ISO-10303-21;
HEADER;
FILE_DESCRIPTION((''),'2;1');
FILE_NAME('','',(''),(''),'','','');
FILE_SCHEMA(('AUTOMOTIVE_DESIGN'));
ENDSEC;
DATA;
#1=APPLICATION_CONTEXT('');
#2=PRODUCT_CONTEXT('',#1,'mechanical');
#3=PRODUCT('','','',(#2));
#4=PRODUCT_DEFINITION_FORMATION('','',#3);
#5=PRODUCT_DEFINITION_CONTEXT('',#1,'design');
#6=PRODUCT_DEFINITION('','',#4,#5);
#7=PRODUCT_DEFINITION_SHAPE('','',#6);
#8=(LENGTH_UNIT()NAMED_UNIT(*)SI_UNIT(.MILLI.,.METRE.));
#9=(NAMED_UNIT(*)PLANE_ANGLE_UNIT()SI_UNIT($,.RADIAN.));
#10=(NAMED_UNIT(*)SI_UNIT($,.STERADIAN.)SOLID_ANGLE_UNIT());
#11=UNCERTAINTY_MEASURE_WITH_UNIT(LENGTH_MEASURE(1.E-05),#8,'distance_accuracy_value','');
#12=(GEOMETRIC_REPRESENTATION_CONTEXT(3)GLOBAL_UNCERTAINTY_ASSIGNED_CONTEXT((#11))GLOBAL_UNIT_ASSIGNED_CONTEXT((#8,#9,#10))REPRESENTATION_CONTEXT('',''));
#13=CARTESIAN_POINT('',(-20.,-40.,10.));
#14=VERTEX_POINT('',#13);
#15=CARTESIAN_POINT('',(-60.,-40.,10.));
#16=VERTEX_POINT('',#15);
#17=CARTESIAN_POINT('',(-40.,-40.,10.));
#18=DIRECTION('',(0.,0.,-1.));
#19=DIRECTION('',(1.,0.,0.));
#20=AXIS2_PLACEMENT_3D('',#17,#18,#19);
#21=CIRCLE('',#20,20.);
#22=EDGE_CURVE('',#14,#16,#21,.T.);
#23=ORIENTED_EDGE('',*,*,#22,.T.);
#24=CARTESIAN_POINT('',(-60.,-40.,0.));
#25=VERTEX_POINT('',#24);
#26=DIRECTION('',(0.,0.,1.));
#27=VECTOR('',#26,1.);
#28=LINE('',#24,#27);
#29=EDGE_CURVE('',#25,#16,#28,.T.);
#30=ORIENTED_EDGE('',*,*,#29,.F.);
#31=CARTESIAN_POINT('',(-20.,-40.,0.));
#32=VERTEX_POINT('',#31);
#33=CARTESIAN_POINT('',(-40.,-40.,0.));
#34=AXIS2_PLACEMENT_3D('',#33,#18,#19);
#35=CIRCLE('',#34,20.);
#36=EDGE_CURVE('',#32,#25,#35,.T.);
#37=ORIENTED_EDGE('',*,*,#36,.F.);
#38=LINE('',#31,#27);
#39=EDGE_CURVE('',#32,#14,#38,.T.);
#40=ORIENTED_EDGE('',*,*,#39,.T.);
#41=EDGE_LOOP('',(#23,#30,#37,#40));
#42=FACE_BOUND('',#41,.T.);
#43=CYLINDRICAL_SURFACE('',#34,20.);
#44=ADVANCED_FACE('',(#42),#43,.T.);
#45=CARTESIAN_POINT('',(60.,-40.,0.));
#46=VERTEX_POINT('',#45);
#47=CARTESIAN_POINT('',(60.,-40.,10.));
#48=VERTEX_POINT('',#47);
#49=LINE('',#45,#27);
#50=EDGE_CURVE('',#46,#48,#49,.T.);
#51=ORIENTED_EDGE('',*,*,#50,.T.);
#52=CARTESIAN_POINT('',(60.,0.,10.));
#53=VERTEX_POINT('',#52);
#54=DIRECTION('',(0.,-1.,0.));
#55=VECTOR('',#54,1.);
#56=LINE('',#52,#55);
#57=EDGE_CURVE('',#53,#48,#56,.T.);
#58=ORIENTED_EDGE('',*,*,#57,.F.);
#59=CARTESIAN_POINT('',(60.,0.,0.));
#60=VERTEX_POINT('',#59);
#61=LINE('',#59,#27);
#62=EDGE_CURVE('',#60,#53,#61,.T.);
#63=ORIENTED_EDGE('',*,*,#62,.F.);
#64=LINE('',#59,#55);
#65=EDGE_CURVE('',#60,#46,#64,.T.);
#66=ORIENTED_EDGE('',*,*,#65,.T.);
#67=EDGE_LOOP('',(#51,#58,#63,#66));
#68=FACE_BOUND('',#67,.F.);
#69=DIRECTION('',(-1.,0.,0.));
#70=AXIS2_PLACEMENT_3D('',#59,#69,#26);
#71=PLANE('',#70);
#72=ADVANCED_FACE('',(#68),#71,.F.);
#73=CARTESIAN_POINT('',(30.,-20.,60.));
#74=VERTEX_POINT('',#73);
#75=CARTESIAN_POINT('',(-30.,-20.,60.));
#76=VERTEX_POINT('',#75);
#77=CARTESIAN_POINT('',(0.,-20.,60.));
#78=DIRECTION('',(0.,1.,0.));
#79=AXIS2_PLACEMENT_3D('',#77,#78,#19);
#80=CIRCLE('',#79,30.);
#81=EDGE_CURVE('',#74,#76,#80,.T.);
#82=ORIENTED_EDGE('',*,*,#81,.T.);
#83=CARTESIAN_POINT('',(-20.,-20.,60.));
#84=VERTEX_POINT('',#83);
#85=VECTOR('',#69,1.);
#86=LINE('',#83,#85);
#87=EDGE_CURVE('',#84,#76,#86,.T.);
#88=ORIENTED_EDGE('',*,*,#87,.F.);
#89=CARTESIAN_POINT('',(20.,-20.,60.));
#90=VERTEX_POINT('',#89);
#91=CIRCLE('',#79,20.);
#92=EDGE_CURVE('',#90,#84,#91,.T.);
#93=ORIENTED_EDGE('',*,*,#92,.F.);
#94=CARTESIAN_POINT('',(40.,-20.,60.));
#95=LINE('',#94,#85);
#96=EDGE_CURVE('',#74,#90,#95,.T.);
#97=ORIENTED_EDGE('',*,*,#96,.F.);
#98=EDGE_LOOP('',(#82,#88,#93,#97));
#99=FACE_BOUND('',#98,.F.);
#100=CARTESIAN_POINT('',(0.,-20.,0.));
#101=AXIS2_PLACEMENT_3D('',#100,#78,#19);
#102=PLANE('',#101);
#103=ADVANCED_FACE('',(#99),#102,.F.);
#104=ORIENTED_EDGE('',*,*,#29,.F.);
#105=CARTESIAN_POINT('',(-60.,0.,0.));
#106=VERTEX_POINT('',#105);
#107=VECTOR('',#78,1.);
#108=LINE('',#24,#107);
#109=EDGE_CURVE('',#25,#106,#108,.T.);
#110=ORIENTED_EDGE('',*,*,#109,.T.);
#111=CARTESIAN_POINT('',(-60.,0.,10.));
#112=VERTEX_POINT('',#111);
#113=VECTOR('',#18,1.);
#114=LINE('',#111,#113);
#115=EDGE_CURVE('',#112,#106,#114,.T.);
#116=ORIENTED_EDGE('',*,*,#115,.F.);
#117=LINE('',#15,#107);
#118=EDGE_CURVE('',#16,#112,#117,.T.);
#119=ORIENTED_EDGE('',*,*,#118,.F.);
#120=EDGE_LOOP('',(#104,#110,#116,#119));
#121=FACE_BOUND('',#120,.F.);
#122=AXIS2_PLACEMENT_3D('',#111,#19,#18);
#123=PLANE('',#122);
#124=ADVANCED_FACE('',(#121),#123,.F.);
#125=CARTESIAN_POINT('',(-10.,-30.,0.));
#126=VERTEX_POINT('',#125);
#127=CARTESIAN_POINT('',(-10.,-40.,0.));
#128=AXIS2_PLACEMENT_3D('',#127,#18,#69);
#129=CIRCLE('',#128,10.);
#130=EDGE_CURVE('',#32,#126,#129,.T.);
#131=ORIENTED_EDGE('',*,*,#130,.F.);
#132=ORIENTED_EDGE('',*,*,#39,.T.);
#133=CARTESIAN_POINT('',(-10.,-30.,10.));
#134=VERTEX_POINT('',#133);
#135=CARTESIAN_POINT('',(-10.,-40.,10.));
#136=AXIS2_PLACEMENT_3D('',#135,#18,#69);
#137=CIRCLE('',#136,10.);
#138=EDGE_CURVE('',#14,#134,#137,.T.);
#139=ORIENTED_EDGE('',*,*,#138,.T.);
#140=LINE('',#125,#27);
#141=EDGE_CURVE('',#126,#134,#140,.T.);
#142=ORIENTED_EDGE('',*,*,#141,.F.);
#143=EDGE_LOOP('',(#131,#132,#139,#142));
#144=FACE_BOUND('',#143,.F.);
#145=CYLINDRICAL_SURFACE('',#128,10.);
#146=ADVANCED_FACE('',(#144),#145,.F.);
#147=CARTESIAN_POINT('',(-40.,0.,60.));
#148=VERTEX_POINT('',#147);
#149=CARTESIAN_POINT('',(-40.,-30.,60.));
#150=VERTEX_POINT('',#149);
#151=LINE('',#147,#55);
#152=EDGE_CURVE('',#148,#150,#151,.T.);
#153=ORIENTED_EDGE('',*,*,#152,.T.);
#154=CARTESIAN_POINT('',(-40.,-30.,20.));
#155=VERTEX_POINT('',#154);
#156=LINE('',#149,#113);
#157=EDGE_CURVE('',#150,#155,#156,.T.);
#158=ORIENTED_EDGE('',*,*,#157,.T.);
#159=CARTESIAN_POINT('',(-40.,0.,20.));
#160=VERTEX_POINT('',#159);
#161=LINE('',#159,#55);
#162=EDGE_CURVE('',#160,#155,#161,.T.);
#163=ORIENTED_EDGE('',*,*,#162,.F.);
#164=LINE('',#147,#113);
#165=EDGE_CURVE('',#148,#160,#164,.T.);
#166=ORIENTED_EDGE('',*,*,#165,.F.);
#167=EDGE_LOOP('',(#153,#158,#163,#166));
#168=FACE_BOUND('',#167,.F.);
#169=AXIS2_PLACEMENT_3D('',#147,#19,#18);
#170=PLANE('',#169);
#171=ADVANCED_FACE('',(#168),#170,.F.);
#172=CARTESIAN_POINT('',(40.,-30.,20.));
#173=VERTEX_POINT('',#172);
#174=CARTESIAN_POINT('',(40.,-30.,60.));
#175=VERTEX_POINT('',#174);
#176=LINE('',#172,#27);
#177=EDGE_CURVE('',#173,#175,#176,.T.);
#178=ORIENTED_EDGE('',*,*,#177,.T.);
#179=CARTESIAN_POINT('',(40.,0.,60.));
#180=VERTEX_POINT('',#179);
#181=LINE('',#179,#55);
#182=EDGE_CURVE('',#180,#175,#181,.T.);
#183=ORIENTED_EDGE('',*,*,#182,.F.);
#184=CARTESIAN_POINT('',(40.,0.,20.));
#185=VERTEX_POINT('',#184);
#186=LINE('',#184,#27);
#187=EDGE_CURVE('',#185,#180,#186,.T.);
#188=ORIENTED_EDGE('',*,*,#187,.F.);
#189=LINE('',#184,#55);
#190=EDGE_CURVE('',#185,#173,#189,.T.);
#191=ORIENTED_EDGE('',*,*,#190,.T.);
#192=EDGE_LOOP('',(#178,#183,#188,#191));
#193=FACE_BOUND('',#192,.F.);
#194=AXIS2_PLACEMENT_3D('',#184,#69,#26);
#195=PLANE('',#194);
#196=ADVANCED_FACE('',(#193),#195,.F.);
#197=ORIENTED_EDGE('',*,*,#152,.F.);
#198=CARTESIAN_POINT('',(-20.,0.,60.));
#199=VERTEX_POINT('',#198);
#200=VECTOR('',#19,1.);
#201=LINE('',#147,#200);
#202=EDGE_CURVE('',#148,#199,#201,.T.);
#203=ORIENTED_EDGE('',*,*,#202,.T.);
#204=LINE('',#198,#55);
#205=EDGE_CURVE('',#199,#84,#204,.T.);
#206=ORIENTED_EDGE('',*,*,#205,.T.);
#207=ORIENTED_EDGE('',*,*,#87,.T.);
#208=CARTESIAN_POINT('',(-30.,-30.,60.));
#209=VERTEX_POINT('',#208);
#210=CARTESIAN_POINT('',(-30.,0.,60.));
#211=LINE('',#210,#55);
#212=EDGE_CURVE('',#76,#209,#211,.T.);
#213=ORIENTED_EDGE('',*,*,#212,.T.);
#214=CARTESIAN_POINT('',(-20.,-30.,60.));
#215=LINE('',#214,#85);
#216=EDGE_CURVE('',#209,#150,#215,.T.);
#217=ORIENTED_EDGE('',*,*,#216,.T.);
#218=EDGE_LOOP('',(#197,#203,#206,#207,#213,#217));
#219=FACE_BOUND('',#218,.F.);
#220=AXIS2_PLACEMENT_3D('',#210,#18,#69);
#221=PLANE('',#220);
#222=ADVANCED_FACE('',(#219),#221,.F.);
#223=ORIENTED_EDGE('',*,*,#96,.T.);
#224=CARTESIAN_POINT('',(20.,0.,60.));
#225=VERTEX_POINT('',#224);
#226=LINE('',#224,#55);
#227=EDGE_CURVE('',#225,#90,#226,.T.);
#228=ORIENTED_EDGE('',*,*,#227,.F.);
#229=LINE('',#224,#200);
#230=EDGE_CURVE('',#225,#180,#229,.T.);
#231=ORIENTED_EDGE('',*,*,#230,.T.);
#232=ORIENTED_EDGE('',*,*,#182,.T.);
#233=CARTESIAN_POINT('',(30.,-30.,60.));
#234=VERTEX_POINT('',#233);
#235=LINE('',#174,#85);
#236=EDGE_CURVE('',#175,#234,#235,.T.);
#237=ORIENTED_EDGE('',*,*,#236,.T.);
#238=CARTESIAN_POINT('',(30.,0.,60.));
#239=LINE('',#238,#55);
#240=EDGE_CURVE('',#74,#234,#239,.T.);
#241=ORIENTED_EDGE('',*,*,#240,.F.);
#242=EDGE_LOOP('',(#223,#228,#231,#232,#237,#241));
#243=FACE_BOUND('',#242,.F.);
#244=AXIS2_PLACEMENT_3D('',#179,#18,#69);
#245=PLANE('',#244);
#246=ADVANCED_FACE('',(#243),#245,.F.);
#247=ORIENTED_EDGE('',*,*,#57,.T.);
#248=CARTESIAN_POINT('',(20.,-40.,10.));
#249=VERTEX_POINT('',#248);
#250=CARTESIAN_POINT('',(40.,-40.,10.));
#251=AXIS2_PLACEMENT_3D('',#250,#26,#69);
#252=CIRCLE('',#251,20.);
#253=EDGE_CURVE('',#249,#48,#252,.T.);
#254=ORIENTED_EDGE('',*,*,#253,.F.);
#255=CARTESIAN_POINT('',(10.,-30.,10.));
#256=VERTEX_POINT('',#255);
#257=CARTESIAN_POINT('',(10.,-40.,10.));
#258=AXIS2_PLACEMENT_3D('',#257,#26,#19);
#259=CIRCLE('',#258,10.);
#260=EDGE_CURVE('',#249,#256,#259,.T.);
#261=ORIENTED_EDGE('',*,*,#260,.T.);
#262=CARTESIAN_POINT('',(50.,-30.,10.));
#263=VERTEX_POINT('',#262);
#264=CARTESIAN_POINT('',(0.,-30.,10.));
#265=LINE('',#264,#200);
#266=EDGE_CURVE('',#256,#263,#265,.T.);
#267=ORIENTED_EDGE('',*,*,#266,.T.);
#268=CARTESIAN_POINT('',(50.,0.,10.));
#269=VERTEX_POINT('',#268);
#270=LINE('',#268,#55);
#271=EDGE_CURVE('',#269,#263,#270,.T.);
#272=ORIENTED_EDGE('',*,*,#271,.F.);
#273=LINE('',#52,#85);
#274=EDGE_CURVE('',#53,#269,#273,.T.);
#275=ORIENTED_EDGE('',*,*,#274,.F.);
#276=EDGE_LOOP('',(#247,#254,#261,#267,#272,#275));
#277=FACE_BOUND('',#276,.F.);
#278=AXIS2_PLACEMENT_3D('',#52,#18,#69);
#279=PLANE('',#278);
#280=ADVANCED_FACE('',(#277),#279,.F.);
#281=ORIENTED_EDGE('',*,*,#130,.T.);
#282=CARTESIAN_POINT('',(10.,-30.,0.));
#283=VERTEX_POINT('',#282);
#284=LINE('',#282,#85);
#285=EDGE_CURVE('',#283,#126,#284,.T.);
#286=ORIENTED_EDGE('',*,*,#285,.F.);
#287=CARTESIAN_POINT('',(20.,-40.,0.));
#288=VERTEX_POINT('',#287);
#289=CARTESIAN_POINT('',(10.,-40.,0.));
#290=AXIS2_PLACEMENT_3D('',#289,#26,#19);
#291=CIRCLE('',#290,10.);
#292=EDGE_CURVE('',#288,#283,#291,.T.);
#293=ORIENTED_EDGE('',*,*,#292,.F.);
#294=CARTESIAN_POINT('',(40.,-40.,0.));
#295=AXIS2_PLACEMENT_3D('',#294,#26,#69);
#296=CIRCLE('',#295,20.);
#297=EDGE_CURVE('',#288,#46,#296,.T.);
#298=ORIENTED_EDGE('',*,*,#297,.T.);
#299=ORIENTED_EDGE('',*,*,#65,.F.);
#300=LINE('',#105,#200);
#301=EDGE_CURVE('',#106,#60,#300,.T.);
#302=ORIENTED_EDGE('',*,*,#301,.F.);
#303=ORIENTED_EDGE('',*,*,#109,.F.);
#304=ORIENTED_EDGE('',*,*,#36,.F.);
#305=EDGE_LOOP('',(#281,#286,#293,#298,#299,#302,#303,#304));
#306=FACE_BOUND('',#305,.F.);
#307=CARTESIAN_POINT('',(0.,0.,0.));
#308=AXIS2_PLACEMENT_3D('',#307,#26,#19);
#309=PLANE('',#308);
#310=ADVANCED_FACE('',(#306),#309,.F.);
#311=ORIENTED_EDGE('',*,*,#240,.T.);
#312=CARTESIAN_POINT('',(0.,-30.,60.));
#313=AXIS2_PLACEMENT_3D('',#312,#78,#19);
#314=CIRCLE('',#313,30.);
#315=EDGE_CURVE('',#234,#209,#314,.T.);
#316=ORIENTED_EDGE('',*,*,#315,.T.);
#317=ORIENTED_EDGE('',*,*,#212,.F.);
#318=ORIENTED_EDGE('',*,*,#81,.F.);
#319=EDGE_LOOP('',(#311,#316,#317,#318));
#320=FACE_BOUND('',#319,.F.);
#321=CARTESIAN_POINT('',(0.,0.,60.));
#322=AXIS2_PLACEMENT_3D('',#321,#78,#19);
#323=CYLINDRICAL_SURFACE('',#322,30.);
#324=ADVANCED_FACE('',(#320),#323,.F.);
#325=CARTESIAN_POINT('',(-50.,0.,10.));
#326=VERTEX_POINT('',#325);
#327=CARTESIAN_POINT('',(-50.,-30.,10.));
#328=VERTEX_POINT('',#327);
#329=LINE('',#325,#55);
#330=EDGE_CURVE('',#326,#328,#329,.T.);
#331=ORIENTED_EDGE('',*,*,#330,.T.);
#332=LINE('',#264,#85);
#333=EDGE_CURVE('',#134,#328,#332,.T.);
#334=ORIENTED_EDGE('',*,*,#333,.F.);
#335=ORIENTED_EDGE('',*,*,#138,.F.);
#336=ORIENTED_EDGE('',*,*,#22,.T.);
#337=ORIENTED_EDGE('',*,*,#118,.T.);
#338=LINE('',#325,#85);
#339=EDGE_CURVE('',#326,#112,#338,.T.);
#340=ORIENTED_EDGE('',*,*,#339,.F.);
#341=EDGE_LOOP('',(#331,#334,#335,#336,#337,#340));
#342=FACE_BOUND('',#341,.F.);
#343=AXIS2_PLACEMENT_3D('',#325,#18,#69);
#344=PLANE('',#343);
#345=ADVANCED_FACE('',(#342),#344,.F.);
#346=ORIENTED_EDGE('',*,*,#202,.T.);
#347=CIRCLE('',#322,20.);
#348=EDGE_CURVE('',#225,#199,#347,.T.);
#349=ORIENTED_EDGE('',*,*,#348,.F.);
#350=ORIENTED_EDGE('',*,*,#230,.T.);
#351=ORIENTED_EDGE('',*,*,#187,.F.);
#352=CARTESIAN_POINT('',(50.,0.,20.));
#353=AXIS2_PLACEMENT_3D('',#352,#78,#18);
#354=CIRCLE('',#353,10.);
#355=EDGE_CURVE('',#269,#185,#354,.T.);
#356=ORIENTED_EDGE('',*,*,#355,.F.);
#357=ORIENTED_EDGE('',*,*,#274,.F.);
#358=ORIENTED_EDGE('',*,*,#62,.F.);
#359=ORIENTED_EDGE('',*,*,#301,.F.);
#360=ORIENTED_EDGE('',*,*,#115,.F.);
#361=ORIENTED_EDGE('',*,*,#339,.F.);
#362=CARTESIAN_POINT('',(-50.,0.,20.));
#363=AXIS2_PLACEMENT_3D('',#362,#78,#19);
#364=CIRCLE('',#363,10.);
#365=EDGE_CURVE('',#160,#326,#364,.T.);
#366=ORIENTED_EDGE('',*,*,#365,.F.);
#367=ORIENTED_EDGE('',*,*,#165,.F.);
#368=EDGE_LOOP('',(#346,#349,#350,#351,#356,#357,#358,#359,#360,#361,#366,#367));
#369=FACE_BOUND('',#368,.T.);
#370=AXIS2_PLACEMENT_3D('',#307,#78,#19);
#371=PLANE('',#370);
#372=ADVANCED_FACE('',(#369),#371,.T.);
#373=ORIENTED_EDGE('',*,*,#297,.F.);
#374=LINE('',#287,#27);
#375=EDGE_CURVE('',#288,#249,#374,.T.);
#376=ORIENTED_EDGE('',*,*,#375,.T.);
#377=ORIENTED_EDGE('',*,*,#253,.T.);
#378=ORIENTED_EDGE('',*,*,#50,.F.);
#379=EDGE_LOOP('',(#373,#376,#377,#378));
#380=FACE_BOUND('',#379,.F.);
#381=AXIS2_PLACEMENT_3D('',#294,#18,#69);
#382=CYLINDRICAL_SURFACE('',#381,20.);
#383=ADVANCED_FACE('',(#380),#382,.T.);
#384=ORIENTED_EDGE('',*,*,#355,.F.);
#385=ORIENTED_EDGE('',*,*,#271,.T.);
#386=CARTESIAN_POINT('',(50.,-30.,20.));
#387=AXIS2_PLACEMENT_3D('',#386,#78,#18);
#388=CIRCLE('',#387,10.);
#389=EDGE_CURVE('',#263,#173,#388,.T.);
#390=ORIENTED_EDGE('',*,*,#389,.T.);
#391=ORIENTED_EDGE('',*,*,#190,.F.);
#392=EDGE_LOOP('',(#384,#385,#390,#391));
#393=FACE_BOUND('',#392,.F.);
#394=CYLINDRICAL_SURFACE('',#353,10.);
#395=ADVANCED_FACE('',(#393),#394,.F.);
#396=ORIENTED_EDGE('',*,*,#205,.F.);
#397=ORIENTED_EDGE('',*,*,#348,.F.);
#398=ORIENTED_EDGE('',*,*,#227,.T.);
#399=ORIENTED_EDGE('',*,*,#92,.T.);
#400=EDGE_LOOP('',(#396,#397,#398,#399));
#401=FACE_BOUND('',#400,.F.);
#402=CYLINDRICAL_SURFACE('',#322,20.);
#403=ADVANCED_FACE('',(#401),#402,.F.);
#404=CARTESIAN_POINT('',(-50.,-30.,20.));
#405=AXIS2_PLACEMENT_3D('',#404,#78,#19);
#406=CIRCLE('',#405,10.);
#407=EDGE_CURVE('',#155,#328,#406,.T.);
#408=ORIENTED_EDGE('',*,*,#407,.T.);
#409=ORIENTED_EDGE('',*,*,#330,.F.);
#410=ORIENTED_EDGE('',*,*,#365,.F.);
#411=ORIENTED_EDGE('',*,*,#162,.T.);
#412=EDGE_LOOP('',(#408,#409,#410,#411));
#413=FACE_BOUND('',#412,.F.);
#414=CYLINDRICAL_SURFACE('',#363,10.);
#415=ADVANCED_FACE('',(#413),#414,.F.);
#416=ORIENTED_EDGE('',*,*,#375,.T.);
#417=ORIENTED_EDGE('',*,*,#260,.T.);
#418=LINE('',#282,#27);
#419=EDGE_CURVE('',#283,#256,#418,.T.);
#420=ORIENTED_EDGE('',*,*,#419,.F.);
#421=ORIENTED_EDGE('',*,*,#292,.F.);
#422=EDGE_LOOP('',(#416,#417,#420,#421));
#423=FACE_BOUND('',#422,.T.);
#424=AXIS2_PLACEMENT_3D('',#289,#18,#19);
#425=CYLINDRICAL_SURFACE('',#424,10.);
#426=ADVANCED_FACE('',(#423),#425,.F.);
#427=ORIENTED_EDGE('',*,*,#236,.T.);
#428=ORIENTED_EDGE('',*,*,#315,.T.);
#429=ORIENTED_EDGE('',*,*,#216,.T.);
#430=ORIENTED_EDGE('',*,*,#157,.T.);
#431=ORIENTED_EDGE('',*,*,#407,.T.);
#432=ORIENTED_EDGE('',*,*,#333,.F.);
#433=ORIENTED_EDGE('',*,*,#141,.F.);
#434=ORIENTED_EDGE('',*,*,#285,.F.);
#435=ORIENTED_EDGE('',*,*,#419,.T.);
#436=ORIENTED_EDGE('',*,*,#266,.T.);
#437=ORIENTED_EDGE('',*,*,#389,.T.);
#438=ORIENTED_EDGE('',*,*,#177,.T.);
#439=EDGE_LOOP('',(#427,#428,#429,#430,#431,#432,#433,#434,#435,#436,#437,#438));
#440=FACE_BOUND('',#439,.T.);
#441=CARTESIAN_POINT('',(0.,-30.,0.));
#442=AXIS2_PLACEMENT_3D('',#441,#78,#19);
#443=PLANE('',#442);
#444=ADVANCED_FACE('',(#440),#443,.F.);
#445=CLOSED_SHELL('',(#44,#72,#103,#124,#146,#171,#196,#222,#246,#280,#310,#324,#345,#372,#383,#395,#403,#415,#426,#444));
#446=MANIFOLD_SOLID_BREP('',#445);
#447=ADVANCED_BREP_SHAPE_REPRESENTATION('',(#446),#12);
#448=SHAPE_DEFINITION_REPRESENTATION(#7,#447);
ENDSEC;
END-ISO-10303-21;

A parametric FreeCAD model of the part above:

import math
import FreeCAD as App
import Part
import Sketcher
from FreeCAD import Vector

doc = App.newDocument("Part")
body = doc.addObject("PartDesign::Body", "Body")

sketch1 = body.newObject("Sketcher::SketchObject", "Sketch")
sketch1.AttachmentSupport = (doc.getObject("XZ_Plane"), [""])
sketch1.MapMode = "FlatFace"
sketch1.addGeometry([
    Part.LineSegment(Vector(60, 0, 0), Vector(-60, 0, 0)),
    Part.LineSegment(Vector(-60, 0, 0), Vector(-60, 10, 0)),
    Part.LineSegment(Vector(-60, 10, 0), Vector(-50, 10, 0)),
    Part.ArcOfCircle(Part.Circle(Vector(-50, 20, 0), Vector(0, 0, 1), 10), math.radians(-90), math.radians(0)),
    Part.LineSegment(Vector(-40, 20, 0), Vector(-40, 60, 0)),
    Part.LineSegment(Vector(-40, 60, 0), Vector(-30, 60, 0)),
    Part.ArcOfCircle(Part.Circle(Vector(0, 60, 0), Vector(0, 0, 1), 30), math.radians(180), math.radians(360)),
    Part.LineSegment(Vector(30, 60, 0), Vector(40, 60, 0)),
    Part.LineSegment(Vector(40, 60, 0), Vector(40, 20, 0)),
    Part.ArcOfCircle(Part.Circle(Vector(50, 20, 0), Vector(0, 0, 1), 10), math.radians(180), math.radians(270)),
    Part.LineSegment(Vector(50, 10, 0), Vector(60, 10, 0)),
    Part.LineSegment(Vector(60, 10, 0), Vector(60, 0, 0)),
], False)
sketch1.addConstraint([
    Sketcher.Constraint("Coincident", 0, 2, 1, 1),
    Sketcher.Constraint("Coincident", 1, 2, 2, 1),
    Sketcher.Constraint("Tangent", 2, 2, 3, 1),
    Sketcher.Constraint("Tangent", 3, 2, 4, 1),
    Sketcher.Constraint("Coincident", 4, 2, 5, 1),
    Sketcher.Constraint("Coincident", 5, 2, 6, 1),
    Sketcher.Constraint("Coincident", 6, 2, 7, 1),
    Sketcher.Constraint("Coincident", 7, 2, 8, 1),
    Sketcher.Constraint("Tangent", 8, 2, 9, 1),
    Sketcher.Constraint("Tangent", 9, 2, 10, 1),
    Sketcher.Constraint("Coincident", 10, 2, 11, 1),
    Sketcher.Constraint("Coincident", 11, 2, 0, 1),
    Sketcher.Constraint("Horizontal", 0),
    Sketcher.Constraint("Vertical", 1),
    Sketcher.Constraint("Horizontal", 2),
    Sketcher.Constraint("Vertical", 4),
    Sketcher.Constraint("Horizontal", 5),
    Sketcher.Constraint("Horizontal", 7),
    Sketcher.Constraint("Vertical", 8),
    Sketcher.Constraint("Horizontal", 10),
    Sketcher.Constraint("Vertical", 11),
    Sketcher.Constraint("Equal", 3, 9),
    Sketcher.Constraint("Symmetric", 0, 2, 11, 2, -1, 1),
    Sketcher.Constraint("Symmetric", 3, 3, 9, 3, -2),
    Sketcher.Constraint("Symmetric", 5, 2, 6, 2, -2),
    Sketcher.Constraint("Horizontal", 6, 3, 4, 2),
    Sketcher.Constraint("Equal", 2, 5),
    Sketcher.Constraint("Equal", 10, 1),
    Sketcher.Constraint("Radius", 3, 10.0),
    Sketcher.Constraint("Radius", 6, 30.0),
    Sketcher.Constraint("DistanceX", 2, 1, 2, 2, 10.0),
    Sketcher.Constraint("DistanceY", 4, 1, 4, 2, 40.0),
])
pad1 = body.newObject("PartDesign::Pad", "Pad")
pad1.Profile = sketch1
pad1.Length = 30

sketch2 = body.newObject("Sketcher::SketchObject", "Sketch001")
sketch2.AttachmentSupport = (doc.getObject("XZ_Plane"), [""])
sketch2.MapMode = "FlatFace"
sketch2.addGeometry([
    Part.LineSegment(Vector(20, 60, 0), Vector(30, 60, 0)),
    Part.ArcOfCircle(Part.Circle(Vector(0, 60, 0), Vector(0, 0, 1), 30), math.radians(180), math.radians(360)),
    Part.LineSegment(Vector(-30, 60, 0), Vector(-20, 60, 0)),
    Part.ArcOfCircle(Part.Circle(Vector(0, 60, 0), Vector(0, 0, 1), 20), math.radians(180), math.radians(360)),
], False)
sketch2.addConstraint([
    Sketcher.Constraint("Coincident", 0, 2, 1, 2),
    Sketcher.Constraint("Coincident", 1, 1, 2, 1),
    Sketcher.Constraint("Coincident", 2, 2, 3, 1),
    Sketcher.Constraint("Coincident", 3, 2, 0, 1),
    Sketcher.Constraint("Horizontal", 0),
    Sketcher.Constraint("Horizontal", 2),
    Sketcher.Constraint("Coincident", 3, 3, 1, 3),
    Sketcher.Constraint("Symmetric", 0, 2, 1, 1, -2),
    Sketcher.Constraint("Horizontal", 3, 3, 0, 2),
    Sketcher.Constraint("Radius", 1, 30.0),
    Sketcher.Constraint("Radius", 3, 20.0),
    Sketcher.Constraint("DistanceY", -1, 1, 1, 3, 60.0),
])
pad2 = body.newObject("PartDesign::Pad", "Pad001")
pad2.Profile = sketch2
pad2.Length = 20

sketch3 = body.newObject("Sketcher::SketchObject", "Sketch002")
sketch3.AttachmentSupport = (doc.getObject("XY_Plane"), [""])
sketch3.MapMode = "FlatFace"
sketch3.addGeometry([
    Part.LineSegment(Vector(60, -40, 0), Vector(60, 0, 0)),
    Part.LineSegment(Vector(60, 0, 0), Vector(0, 0, 0)),
    Part.LineSegment(Vector(0, 0, 0), Vector(0, -30, 0)),
    Part.LineSegment(Vector(0, -30, 0), Vector(10, -30, 0)),
    Part.ArcOfCircle(Part.Circle(Vector(10, -40, 0), Vector(0, 0, 1), 10), math.radians(0), math.radians(90)),
    Part.ArcOfCircle(Part.Circle(Vector(40, -40, 0), Vector(0, 0, 1), 20), math.radians(180), math.radians(360)),
], False)
sketch3.addConstraint([
    Sketcher.Constraint("Coincident", 0, 2, 1, 1),
    Sketcher.Constraint("Coincident", 1, 2, 2, 1),
    Sketcher.Constraint("Coincident", 2, 2, 3, 1),
    Sketcher.Constraint("Tangent", 3, 2, 4, 2),
    Sketcher.Constraint("Tangent", 4, 1, 5, 1),
    Sketcher.Constraint("Tangent", 5, 2, 0, 1),
    Sketcher.Constraint("Vertical", 0),
    Sketcher.Constraint("Horizontal", 1),
    Sketcher.Constraint("Vertical", 2),
    Sketcher.Constraint("Horizontal", 3),
    Sketcher.Constraint("Coincident", 1, 2, -1, 1),
    Sketcher.Constraint("Horizontal", 4, 3, 5, 3),
    Sketcher.Constraint("Radius", 4, 10.0),
    Sketcher.Constraint("Radius", 5, 20.0),
    Sketcher.Constraint("DistanceX", 1, 2, 1, 1, 60.0),
    Sketcher.Constraint("DistanceY", 0, 1, 0, 2, 40.0),
])
pad3 = body.newObject("PartDesign::Pad", "Pad002")
pad3.Profile = sketch3
pad3.Length = 10
doc.recompute()

mirrored = body.newObject("PartDesign::Mirrored", "Mirrored")
mirrored.Originals = [pad3]
mirrored.MirrorPlane = (doc.getObject("YZ_Plane"), [""])
body.Tip = mirrored

doc.recompute()
